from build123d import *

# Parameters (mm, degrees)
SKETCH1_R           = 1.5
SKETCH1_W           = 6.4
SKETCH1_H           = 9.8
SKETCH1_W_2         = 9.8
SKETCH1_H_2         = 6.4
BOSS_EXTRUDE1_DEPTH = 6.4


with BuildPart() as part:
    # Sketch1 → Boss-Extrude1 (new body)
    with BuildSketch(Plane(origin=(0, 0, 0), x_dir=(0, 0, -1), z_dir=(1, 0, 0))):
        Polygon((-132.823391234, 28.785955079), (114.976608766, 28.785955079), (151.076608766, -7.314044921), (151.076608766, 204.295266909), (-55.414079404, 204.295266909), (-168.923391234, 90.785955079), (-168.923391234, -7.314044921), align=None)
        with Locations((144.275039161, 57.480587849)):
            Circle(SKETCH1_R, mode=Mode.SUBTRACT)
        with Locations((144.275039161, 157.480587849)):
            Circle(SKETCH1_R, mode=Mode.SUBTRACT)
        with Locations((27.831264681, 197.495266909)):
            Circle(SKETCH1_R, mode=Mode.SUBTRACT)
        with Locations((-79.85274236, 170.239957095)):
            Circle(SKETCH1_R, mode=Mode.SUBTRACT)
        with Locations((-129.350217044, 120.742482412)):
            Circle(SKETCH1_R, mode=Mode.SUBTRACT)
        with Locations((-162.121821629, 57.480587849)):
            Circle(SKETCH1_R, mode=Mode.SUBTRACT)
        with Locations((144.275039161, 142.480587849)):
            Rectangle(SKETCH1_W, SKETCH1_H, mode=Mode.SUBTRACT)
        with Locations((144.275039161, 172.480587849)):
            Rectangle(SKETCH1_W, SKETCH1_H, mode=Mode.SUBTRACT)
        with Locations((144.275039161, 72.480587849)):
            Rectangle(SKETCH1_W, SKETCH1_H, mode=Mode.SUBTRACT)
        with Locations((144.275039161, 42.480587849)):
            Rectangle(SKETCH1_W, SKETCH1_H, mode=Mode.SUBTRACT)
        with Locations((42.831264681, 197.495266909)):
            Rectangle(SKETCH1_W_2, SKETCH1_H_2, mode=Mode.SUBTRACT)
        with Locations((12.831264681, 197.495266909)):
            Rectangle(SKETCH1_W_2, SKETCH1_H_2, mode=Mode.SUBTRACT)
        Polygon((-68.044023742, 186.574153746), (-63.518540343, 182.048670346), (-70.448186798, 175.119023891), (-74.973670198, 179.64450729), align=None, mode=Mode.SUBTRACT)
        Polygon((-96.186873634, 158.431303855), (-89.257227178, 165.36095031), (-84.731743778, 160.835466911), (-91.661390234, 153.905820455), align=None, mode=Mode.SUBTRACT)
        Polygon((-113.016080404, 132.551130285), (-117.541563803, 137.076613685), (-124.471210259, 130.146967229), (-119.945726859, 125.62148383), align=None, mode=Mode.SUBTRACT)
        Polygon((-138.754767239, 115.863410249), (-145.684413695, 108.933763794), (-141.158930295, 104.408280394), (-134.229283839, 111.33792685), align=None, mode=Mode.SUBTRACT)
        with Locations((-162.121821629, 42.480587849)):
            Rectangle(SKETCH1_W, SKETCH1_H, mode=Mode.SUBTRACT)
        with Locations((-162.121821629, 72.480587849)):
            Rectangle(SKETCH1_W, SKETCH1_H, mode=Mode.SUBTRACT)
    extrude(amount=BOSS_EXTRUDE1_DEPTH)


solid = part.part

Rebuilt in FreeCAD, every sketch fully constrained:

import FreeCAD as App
import Part
import Sketcher
from FreeCAD import Vector
Q = App.Units.Quantity


def add_polygon(sketch, points):
    """Adds a closed chain of lines whose ends are joined by coincident constraints."""
    first, n = sketch.GeometryCount, len(points)
    for a, b in zip(points, points[1:] + points[:1]):
        sketch.addGeometry(Part.LineSegment(App.Vector(*a, 0), App.Vector(*b, 0)), False)
    for i in range(n):
        sketch.addConstraint(Sketcher.Constraint("Coincident", first + i, 2, first + (i + 1) % n, 1))

doc = App.newDocument("Part")
body = doc.addObject("PartDesign::Body", "Body")

sketch1 = body.newObject("Sketcher::SketchObject", "Sketch")
sketch1.AttachmentSupport = (doc.getObject("YZ_Plane"), [""])
sketch1.MapMode = "FlatFace"
add_polygon(sketch1, [(28.8, 132.8), (28.8, -115), (-7.3, -151.1), (204.3, -151.1), (204.3, 55.4), (90.8, 168.9), (-7.3, 168.9)])
add_polygon(sketch1, [(37.6, 158.9), (37.6, 165.3), (47.4, 165.3), (47.4, 158.9)])
sketch1.addGeometry(Part.Circle(Vector(57.5, 162.1, 0), Vector(0, 0, 1), 1.5), False)
add_polygon(sketch1, [(67.6, 158.9), (67.6, 165.3), (77.4, 165.3), (77.4, 158.9)])
add_polygon(sketch1, [(108.9, 145.7), (115.9, 138.8), (111.3, 134.2), (104.4, 141.2)])
add_polygon(sketch1, [(37.6, -147.5), (37.6, -141.1), (47.4, -141.1), (47.4, -147.5)])
sketch1.addGeometry(Part.Circle(Vector(57.5, -144.3, 0), Vector(0, 0, 1), 1.5), False)
add_polygon(sketch1, [(67.6, -147.5), (67.6, -141.1), (77.4, -141.1), (77.4, -147.5)])
sketch1.addGeometry(Part.Circle(Vector(120.7, 129.4, 0), Vector(0, 0, 1), 1.5), False)
add_polygon(sketch1, [(137.1, 117.5), (132.6, 113), (125.6, 119.9), (130.1, 124.5)])
add_polygon(sketch1, [(153.9, 91.7), (158.4, 96.2), (165.4, 89.3), (160.8, 84.7)])
sketch1.addGeometry(Part.Circle(Vector(170.2, 79.9, 0), Vector(0, 0, 1), 1.5), False)
add_polygon(sketch1, [(179.6, 75), (186.6, 68), (182, 63.5), (175.1, 70.4)])
add_polygon(sketch1, [(137.6, -147.5), (137.6, -141.1), (147.4, -141.1), (147.4, -147.5)])
sketch1.addGeometry(Part.Circle(Vector(157.5, -144.3, 0), Vector(0, 0, 1), 1.5), False)
add_polygon(sketch1, [(194.3, -17.7), (194.3, -7.9), (200.7, -7.9), (200.7, -17.7)])
sketch1.addGeometry(Part.Circle(Vector(197.5, -27.8, 0), Vector(0, 0, 1), 1.5), False)
add_polygon(sketch1, [(194.3, -47.7), (194.3, -37.9), (200.7, -37.9), (200.7, -47.7)])
add_polygon(sketch1, [(167.6, -147.5), (167.6, -141.1), (177.4, -141.1), (177.4, -147.5)])
sketch1.addConstraint(Sketcher.Constraint("Vertical", 0))
sketch1.addConstraint(Sketcher.Constraint("Horizontal", 2))
sketch1.addConstraint(Sketcher.Constraint("Vertical", 3))
sketch1.addConstraint(Sketcher.Constraint("Horizontal", 5))
sketch1.addConstraint(Sketcher.Constraint("Vertical", 7))
sketch1.addConstraint(Sketcher.Constraint("Horizontal", 8))
sketch1.addConstraint(Sketcher.Constraint("Vertical", 9))
sketch1.addConstraint(Sketcher.Constraint("Horizontal", 10))
sketch1.addConstraint(Sketcher.Constraint("Vertical", 12))
sketch1.addConstraint(Sketcher.Constraint("Horizontal", 13))
sketch1.addConstraint(Sketcher.Constraint("Vertical", 14))
sketch1.addConstraint(Sketcher.Constraint("Horizontal", 15))
sketch1.addConstraint(Sketcher.Constraint("Vertical", 20))
sketch1.addConstraint(Sketcher.Constraint("Horizontal", 21))
sketch1.addConstraint(Sketcher.Constraint("Vertical", 22))
sketch1.addConstraint(Sketcher.Constraint("Horizontal", 23))
sketch1.addConstraint(Sketcher.Constraint("Vertical", 25))
sketch1.addConstraint(Sketcher.Constraint("Horizontal", 26))
sketch1.addConstraint(Sketcher.Constraint("Vertical", 27))
sketch1.addConstraint(Sketcher.Constraint("Horizontal", 28))
sketch1.addConstraint(Sketcher.Constraint("Vertical", 43))
sketch1.addConstraint(Sketcher.Constraint("Horizontal", 44))
sketch1.addConstraint(Sketcher.Constraint("Vertical", 45))
sketch1.addConstraint(Sketcher.Constraint("Horizontal", 46))
sketch1.addConstraint(Sketcher.Constraint("Vertical", 48))
sketch1.addConstraint(Sketcher.Constraint("Horizontal", 49))
sketch1.addConstraint(Sketcher.Constraint("Vertical", 50))
sketch1.addConstraint(Sketcher.Constraint("Horizontal", 51))
sketch1.addConstraint(Sketcher.Constraint("Vertical", 53))
sketch1.addConstraint(Sketcher.Constraint("Horizontal", 54))
sketch1.addConstraint(Sketcher.Constraint("Vertical", 55))
sketch1.addConstraint(Sketcher.Constraint("Horizontal", 56))
sketch1.addConstraint(Sketcher.Constraint("Vertical", 57))
sketch1.addConstraint(Sketcher.Constraint("Horizontal", 58))
sketch1.addConstraint(Sketcher.Constraint("Vertical", 59))
sketch1.addConstraint(Sketcher.Constraint("Horizontal", 60))
sketch1.addConstraint(Sketcher.Constraint("Equal", 11, 24))
sketch1.addConstraint(Sketcher.Constraint("Equal", 24, 29))
sketch1.addConstraint(Sketcher.Constraint("Equal", 29, 38))
sketch1.addConstraint(Sketcher.Constraint("Equal", 38, 47))
sketch1.addConstraint(Sketcher.Constraint("Equal", 47, 52))
sketch1.addConstraint(Sketcher.Constraint("Perpendicular", 1, 4))
sketch1.addConstraint(Sketcher.Constraint("Parallel", 4, 6))
sketch1.addConstraint(Sketcher.Constraint("Parallel", 6, 16))
sketch1.addConstraint(Sketcher.Constraint("Perpendicular", 16, 17))
sketch1.addConstraint(Sketcher.Constraint("Perpendicular", 17, 18))
sketch1.addConstraint(Sketcher.Constraint("Perpendicular", 18, 19))
sketch1.addConstraint(Sketcher.Constraint("Parallel", 19, 30))
sketch1.addConstraint(Sketcher.Constraint("Perpendicular", 30, 31))
sketch1.addConstraint(Sketcher.Constraint("Perpendicular", 31, 32))
sketch1.addConstraint(Sketcher.Constraint("Perpendicular", 32, 33))
sketch1.addConstraint(Sketcher.Constraint("Perpendicular", 33, 34))
sketch1.addConstraint(Sketcher.Constraint("Perpendicular", 34, 35))
sketch1.addConstraint(Sketcher.Constraint("Perpendicular", 35, 36))
sketch1.addConstraint(Sketcher.Constraint("Perpendicular", 36, 37))
sketch1.addConstraint(Sketcher.Constraint("Parallel", 37, 39))
sketch1.addConstraint(Sketcher.Constraint("Perpendicular", 39, 40))
sketch1.addConstraint(Sketcher.Constraint("Perpendicular", 40, 41))
sketch1.addConstraint(Sketcher.Constraint("Perpendicular", 41, 42))
sketch1.addConstraint(Sketcher.Constraint("Horizontal", 24, 3, 47, 3))
sketch1.addConstraint(Sketcher.Constraint("Horizontal", 8, 2, 12, 2))
sketch1.addConstraint(Sketcher.Constraint("Horizontal", 10, 2, 14, 2))
sketch1.addConstraint(Sketcher.Constraint("Horizontal", 21, 2, 25, 2))
sketch1.addConstraint(Sketcher.Constraint("Horizontal", 23, 2, 27, 2))
sketch1.addConstraint(Sketcher.Constraint("Horizontal", 26, 2, 43, 2))
sketch1.addConstraint(Sketcher.Constraint("Horizontal", 28, 2, 45, 2))
sketch1.addConstraint(Sketcher.Constraint("Horizontal", 44, 2, 57, 2))
sketch1.addConstraint(Sketcher.Constraint("Horizontal", 46, 2, 59, 2))
sketch1.addConstraint(Sketcher.Constraint("Vertical", 11, 3, 24, 3))
sketch1.addConstraint(Sketcher.Constraint("Vertical", 1, 2, 5, 2))
sketch1.addConstraint(Sketcher.Constraint("Vertical", 10, 2, 20, 2))
sketch1.addConstraint(Sketcher.Constraint("Vertical", 9, 2, 21, 2))
sketch1.addConstraint(Sketcher.Constraint("Vertical", 15, 2, 25, 2))
sketch1.addConstraint(Sketcher.Constraint("Vertical", 14, 2, 26, 2))
sketch1.addConstraint(Sketcher.Constraint("Vertical", 51, 2, 53, 2))
sketch1.addConstraint(Sketcher.Constraint("Vertical", 50, 2, 54, 2))
sketch1.addConstraint(Sketcher.Constraint("Equal", 10, 13))
sketch1.addConstraint(Sketcher.Constraint("Equal", 28, 44))
sketch1.addConstraint(Sketcher.Constraint("Equal", 46, 58))
sketch1.addConstraint(Sketcher.Constraint("Equal", 56, 7))
sketch1.addConstraint(Sketcher.Constraint("Equal", 14, 20))
sketch1.addConstraint(Sketcher.Constraint("Equal", 60, 48))
sketch1.addConstraint(Sketcher.Constraint("Equal", 50, 53))
sketch1.addConstraint(Sketcher.Constraint("Equal", 1, 6))
sketch1.addConstraint(Sketcher.Constraint("Equal", 19, 30))
sketch1.addConstraint(Sketcher.Constraint("Equal", 18, 31))
sketch1.addConstraint(Sketcher.Constraint("Equal", 32, 34))
sketch1.addConstraint(Sketcher.Constraint("Equal", 33, 35))
sketch1.addConstraint(Sketcher.Constraint("Equal", 37, 39))
sketch1.addConstraint(Sketcher.Constraint("Equal", 36, 40))
sketch1.addConstraint(Sketcher.Constraint("Diameter", 11, Q("3 mm")))
sketch1.addConstraint(Sketcher.Constraint("DistanceX", 5, 2, 5, 1, Q("98.1 mm")))
sketch1.addConstraint(Sketcher.Constraint("DistanceX", 8, 1, 8, 2, Q("9.8 mm")))
sketch1.addConstraint(Sketcher.Constraint("DistanceX", 49, 1, 49, 2, Q("6.4 mm")))
sketch1.addConstraint(Sketcher.Constraint("DistanceY", 0, 2, 0, 1, Q("247.8 mm")))
sketch1.addConstraint(Sketcher.Constraint("Distance", 16, Q("9.8 mm")))
sketch1.addConstraint(Sketcher.Constraint("Distance", 17, Q("6.4 mm")))
sketch1.addConstraint(Sketcher.Constraint("DistanceX", 2, 1, 2, 2, Q("211.609312 mm")))
sketch1.addConstraint(Sketcher.Constraint("DistanceY", 3, 1, 3, 2, Q("206.490688 mm")))
sketch1.addConstraint(Sketcher.Constraint("DistanceY", -1, 1, 11, 3, Q("162.121822 mm")))
sketch1.addConstraint(Sketcher.Constraint("DistanceY", 24, 3, -1, 1, Q("144.275039 mm")))
sketch1.addConstraint(Sketcher.Constraint("DistanceY", 0, 2, -1, 1, Q("114.976609 mm")))
sketch1.addConstraint(Sketcher.Constraint("DistanceY", -1, 1, 7, 2, Q("165.321822 mm")))
sketch1.addConstraint(Sketcher.Constraint("DistanceX", -1, 1, 16, 2, Q("115.86341 mm")))
sketch1.addConstraint(Sketcher.Constraint("DistanceY", -1, 1, 18, 2, Q("141.15893 mm")))
sketch1.addConstraint(Sketcher.Constraint("DistanceY", 20, 2, -1, 1, Q("141.075039 mm")))
sketch1.addConstraint(Sketcher.Constraint("DistanceX", -1, 1, 30, 2, Q("132.55113 mm")))
sketch1.addConstraint(Sketcher.Constraint("DistanceY", -1, 1, 30, 2, Q("113.01608 mm")))
sketch1.addConstraint(Sketcher.Constraint("DistanceX", -1, 1, 35, 2, Q("165.36095 mm")))
sketch1.addConstraint(Sketcher.Constraint("DistanceY", -1, 1, 37, 2, Q("91.66139 mm")))
sketch1.addConstraint(Sketcher.Constraint("DistanceX", -1, 1, 40, 2, Q("182.04867 mm")))
sketch1.addConstraint(Sketcher.Constraint("DistanceY", -1, 1, 40, 2, Q("63.51854 mm")))
sketch1.addConstraint(Sketcher.Constraint("DistanceX", -1, 1, 11, 3, Q("57.480588 mm")))
sketch1.addConstraint(Sketcher.Constraint("DistanceX", -1, 1, 29, 3, Q("120.742482 mm")))
sketch1.addConstraint(Sketcher.Constraint("DistanceY", -1, 1, 29, 3, Q("129.350217 mm")))
sketch1.addConstraint(Sketcher.Constraint("DistanceX", -1, 1, 38, 3, Q("170.239957 mm")))
sketch1.addConstraint(Sketcher.Constraint("DistanceY", -1, 1, 38, 3, Q("79.852742 mm")))
sketch1.addConstraint(Sketcher.Constraint("DistanceX", -1, 1, 47, 3, Q("157.480588 mm")))
sketch1.addConstraint(Sketcher.Constraint("DistanceX", -1, 1, 52, 3, Q("197.495267 mm")))
sketch1.addConstraint(Sketcher.Constraint("DistanceY", 52, 3, -1, 1, Q("27.831265 mm")))
sketch1.addConstraint(Sketcher.Constraint("DistanceX", -1, 1, 0, 2, Q("28.785955 mm")))
sketch1.addConstraint(Sketcher.Constraint("DistanceX", -1, 1, 7, 2, Q("37.580588 mm")))
sketch1.addConstraint(Sketcher.Constraint("DistanceX", -1, 1, 12, 2, Q("67.580588 mm")))
sketch1.addConstraint(Sketcher.Constraint("DistanceX", -1, 1, 43, 2, Q("137.580588 mm")))
sketch1.addConstraint(Sketcher.Constraint("DistanceX", -1, 1, 48, 2, Q("194.295267 mm")))
sketch1.addConstraint(Sketcher.Constraint("DistanceY", 48, 2, -1, 1, Q("7.931265 mm")))
sketch1.addConstraint(Sketcher.Constraint("DistanceY", 53, 2, -1, 1, Q("37.931265 mm")))
sketch1.addConstraint(Sketcher.Constraint("DistanceX", -1, 1, 57, 2, Q("167.580588 mm")))
pad1 = body.newObject("PartDesign::Pad", "Pad")
pad1.Profile = sketch1
pad1.Length = 6.4

doc.recompute()
